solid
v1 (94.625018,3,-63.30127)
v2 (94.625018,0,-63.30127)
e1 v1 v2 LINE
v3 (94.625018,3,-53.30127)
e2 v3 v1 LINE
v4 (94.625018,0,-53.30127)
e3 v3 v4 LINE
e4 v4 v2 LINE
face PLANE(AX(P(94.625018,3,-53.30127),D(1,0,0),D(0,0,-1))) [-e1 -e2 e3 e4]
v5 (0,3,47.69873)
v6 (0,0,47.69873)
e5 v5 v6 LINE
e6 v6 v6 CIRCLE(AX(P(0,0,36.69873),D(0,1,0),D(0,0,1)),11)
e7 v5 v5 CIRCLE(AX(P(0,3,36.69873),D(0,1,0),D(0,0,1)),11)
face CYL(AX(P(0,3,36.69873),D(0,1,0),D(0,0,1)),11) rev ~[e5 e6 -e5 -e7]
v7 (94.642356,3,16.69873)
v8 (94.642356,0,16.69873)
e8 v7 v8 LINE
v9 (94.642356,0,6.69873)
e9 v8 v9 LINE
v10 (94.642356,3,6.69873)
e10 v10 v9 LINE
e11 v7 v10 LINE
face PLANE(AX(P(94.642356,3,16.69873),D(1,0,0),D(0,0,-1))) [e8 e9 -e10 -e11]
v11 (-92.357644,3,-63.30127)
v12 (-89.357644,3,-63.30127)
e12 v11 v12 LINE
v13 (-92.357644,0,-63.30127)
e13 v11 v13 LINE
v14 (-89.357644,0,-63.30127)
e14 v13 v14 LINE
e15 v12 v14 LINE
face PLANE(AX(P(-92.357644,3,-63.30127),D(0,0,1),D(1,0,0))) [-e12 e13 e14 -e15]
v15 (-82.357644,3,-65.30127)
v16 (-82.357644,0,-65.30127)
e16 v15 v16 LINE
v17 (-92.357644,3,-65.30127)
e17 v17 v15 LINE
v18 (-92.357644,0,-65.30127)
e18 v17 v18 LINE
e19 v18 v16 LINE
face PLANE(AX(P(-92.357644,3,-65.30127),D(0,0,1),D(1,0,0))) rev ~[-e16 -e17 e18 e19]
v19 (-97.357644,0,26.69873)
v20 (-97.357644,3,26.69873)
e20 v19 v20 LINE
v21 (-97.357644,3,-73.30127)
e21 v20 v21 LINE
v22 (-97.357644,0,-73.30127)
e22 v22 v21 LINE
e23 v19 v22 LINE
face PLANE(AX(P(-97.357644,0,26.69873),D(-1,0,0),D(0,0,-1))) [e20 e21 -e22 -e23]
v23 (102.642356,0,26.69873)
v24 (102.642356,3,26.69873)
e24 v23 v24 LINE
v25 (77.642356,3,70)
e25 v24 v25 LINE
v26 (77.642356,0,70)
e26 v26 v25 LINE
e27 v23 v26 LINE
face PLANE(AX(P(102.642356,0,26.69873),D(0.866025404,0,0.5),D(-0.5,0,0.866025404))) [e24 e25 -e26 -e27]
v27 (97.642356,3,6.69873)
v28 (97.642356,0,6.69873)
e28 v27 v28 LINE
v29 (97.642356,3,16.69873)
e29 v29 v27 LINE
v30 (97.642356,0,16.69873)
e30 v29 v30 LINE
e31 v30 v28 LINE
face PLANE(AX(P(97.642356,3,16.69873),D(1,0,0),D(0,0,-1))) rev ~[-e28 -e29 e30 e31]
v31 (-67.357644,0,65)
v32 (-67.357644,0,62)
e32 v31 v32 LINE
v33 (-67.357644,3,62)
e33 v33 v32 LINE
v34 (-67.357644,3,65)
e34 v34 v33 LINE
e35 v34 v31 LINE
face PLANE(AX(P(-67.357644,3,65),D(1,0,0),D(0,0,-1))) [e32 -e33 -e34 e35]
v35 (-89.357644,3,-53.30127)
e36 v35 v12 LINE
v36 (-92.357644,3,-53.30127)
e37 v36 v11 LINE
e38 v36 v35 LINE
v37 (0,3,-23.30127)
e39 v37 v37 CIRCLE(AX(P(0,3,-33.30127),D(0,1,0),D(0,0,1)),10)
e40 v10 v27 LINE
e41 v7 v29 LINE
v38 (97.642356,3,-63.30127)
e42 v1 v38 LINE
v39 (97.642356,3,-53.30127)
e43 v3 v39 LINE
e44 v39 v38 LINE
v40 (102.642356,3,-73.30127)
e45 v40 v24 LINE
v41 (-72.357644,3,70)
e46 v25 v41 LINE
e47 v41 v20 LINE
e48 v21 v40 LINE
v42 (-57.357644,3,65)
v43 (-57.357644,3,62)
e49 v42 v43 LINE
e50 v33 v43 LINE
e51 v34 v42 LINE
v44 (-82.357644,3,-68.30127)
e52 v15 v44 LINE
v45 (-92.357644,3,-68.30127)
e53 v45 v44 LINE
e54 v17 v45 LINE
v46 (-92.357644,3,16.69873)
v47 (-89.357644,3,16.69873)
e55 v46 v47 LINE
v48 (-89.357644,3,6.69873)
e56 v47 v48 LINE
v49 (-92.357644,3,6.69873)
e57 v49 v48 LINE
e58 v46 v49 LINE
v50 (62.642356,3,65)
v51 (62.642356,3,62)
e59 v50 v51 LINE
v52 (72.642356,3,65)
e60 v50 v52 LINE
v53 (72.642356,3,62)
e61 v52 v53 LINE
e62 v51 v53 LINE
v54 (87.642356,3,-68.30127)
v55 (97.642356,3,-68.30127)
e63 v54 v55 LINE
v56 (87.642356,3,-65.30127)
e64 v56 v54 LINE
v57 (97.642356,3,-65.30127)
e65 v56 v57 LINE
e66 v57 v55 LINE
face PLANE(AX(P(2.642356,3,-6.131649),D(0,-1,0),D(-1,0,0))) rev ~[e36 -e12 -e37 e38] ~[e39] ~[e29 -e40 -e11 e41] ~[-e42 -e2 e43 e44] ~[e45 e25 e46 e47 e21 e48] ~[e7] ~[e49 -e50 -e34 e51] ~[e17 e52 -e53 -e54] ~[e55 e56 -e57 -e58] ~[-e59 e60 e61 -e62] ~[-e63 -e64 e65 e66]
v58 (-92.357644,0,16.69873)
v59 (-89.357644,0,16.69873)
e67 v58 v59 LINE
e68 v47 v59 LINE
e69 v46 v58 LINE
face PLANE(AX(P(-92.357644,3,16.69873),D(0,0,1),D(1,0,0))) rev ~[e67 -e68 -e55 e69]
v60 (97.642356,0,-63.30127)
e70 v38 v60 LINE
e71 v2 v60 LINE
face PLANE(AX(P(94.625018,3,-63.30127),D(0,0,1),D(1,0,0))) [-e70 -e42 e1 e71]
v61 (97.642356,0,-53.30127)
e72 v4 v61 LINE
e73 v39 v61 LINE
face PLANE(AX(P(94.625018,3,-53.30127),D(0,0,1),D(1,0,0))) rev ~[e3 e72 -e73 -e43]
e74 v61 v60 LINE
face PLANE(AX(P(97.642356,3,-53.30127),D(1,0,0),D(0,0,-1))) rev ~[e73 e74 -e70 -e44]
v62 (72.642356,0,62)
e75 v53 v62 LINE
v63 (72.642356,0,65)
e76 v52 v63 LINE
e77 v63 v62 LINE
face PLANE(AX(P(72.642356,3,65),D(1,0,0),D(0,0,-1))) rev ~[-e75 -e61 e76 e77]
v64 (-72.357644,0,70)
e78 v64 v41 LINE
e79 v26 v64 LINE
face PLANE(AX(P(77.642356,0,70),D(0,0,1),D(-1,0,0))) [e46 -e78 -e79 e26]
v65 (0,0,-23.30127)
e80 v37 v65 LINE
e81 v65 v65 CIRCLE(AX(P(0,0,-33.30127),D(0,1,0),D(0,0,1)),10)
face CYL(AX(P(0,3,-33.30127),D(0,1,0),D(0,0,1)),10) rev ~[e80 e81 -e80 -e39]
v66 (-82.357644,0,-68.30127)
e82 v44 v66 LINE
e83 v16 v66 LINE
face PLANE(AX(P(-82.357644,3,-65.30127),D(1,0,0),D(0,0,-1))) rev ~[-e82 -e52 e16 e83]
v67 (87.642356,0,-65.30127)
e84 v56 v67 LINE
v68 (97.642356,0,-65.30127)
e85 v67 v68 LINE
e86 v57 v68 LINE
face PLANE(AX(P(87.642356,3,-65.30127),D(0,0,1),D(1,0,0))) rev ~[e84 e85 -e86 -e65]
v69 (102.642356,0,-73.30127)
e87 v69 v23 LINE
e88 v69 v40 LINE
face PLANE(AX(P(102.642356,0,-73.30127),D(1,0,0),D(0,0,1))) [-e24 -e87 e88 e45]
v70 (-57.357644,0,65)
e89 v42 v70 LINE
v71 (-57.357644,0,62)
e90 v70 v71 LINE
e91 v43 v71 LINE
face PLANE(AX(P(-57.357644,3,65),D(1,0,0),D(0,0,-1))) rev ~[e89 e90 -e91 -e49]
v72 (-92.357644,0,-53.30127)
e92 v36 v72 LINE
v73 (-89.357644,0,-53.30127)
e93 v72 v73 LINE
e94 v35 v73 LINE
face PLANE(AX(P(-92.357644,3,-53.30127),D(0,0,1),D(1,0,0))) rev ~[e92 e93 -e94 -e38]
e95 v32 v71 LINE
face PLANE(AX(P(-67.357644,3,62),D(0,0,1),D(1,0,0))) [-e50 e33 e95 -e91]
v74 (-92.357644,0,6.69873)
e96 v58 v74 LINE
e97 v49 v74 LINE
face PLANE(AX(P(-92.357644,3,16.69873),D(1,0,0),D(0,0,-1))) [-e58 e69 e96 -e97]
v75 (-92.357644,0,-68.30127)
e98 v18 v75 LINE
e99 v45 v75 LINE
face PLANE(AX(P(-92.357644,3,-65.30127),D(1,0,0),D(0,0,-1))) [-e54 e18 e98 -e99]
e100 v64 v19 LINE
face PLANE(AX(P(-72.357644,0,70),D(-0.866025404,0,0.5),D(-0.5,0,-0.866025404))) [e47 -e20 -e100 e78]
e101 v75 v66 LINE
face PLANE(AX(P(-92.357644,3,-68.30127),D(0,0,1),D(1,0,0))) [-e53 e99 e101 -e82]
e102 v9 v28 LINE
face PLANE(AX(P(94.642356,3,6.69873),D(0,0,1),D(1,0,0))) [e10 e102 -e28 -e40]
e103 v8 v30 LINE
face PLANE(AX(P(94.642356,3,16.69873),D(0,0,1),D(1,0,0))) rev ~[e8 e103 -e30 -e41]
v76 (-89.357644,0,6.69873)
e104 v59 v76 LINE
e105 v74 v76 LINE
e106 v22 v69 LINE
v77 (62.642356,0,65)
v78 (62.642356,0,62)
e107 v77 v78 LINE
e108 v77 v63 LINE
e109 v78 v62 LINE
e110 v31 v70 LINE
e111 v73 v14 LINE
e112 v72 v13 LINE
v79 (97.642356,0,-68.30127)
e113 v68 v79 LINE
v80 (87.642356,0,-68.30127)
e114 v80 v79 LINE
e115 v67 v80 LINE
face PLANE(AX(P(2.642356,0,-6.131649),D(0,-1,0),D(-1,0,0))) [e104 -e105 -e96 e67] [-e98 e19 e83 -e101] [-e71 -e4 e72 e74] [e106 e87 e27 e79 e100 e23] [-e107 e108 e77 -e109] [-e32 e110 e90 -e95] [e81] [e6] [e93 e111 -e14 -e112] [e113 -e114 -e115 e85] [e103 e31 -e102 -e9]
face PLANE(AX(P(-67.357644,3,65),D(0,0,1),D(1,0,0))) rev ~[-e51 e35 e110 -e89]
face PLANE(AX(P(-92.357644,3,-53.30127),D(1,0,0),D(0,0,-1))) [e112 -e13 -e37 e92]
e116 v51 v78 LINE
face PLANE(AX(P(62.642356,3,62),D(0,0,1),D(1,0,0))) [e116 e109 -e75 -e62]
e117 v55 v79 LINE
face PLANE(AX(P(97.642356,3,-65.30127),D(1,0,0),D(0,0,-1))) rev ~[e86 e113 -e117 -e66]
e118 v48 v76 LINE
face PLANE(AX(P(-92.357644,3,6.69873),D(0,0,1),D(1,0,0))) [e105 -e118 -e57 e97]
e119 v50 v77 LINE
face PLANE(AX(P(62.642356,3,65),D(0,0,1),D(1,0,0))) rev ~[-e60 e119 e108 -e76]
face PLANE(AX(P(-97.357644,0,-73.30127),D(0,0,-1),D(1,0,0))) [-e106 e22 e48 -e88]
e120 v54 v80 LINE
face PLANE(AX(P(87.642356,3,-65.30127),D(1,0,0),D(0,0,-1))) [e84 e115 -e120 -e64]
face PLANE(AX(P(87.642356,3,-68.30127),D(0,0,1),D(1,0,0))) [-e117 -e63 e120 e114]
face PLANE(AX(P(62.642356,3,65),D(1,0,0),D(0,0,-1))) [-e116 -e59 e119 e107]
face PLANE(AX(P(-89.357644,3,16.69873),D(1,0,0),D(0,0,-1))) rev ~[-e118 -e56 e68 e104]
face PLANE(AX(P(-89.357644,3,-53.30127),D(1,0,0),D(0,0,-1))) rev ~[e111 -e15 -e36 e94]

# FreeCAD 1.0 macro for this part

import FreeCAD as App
import Part
import Sketcher
Q = App.Units.Quantity


def add_polygon(sketch, points):
    """Adds a closed chain of lines whose ends are joined by coincident constraints."""
    first, n = sketch.GeometryCount, len(points)
    for a, b in zip(points, points[1:] + points[:1]):
        sketch.addGeometry(Part.LineSegment(App.Vector(*a, 0), App.Vector(*b, 0)), False)
    for i in range(n):
        sketch.addConstraint(Sketcher.Constraint("Coincident", first + i, 2, first + (i + 1) % n, 1))

doc = App.newDocument("Part")
body = doc.addObject("PartDesign::Body", "Body")

sketch1 = body.newObject("Sketcher::SketchObject", "Sketch")
sketch1.AttachmentSupport = (doc.getObject("XZ_Plane"), [""])
sketch1.MapMode = "FlatFace"
add_polygon(sketch1, [(-97.357644, -73.30127), (-97.357644, 26.69873), (-72.357644, 70), (77.642356, 70), (102.642356, 26.69873), (102.642356, -73.30127)])
sketch1.addConstraint([
    Sketcher.Constraint("Vertical", 0),
    Sketcher.Constraint("Horizontal", 2),
    Sketcher.Constraint("Vertical", 4),
    Sketcher.Constraint("Horizontal", 5),
    Sketcher.Constraint("Horizontal", 0, 2, 3, 2),
    Sketcher.Constraint("Equal", 1, 3),
    Sketcher.Constraint("DistanceX", 2, 1, 2, 2, Q("150 mm")),
    Sketcher.Constraint("DistanceX", 5, 2, 5, 1, Q("200 mm")),
    Sketcher.Constraint("DistanceY", 0, 1, 0, 2, Q("100 mm")),
    Sketcher.Constraint("Angle", 1, Q("60 deg")),
    Sketcher.Constraint("DistanceY", -1, 1, 1, 2, Q("70 mm")),
    Sketcher.Constraint("DistanceX", 0, 2, -1, 1, Q("97.357644 mm")),
])
pad1 = body.newObject("PartDesign::Pad", "Pad")
pad1.Profile = sketch1
pad1.Length = 3
pad1.Reversed = True

sketch2 = body.newObject("Sketcher::SketchObject", "Sketch001")
sketch2.AttachmentSupport = (doc.getObject("XZ_Plane"), [""])
sketch2.MapMode = "FlatFace"
sketch2.AttachmentOffset = App.Placement(App.Vector(0, 0, -3), App.Rotation())
add_polygon(sketch2, [(-67.357644, 62), (-67.357644, 65), (-57.357644, 65), (-57.357644, 62)])
add_polygon(sketch2, [(62.642356, 62), (62.642356, 65), (72.642356, 65), (72.642356, 62)])
add_polygon(sketch2, [(94.642356, 6.69873), (94.642356, 16.69873), (97.642356, 16.69873), (97.642356, 6.69873)])
add_polygon(sketch2, [(94.625018, -63.30127), (94.625018, -53.30127), (97.642356, -53.30127), (97.642356, -63.30127)])
add_polygon(sketch2, [(87.642356, -68.30127), (87.642356, -65.30127), (97.642356, -65.30127), (97.642356, -68.30127)])
add_polygon(sketch2, [(-92.357644, 6.69873), (-92.357644, 16.69873), (-89.357644, 16.69873), (-89.357644, 6.69873)])
add_polygon(sketch2, [(-92.357644, -63.30127), (-92.357644, -53.30127), (-89.357644, -53.30127), (-89.357644, -63.30127)])
add_polygon(sketch2, [(-92.357644, -68.30127), (-92.357644, -65.30127), (-82.357644, -65.30127), (-82.357644, -68.30127)])
sketch2.addConstraint([
    Sketcher.Constraint("Vertical", 0),
    Sketcher.Constraint("Horizontal", 1),
    Sketcher.Constraint("Vertical", 2),
    Sketcher.Constraint("Horizontal", 3),
    Sketcher.Constraint("Vertical", 4),
    Sketcher.Constraint("Horizontal", 5),
    Sketcher.Constraint("Vertical", 6),
    Sketcher.Constraint("Horizontal", 7),
    Sketcher.Constraint("Vertical", 8),
    Sketcher.Constraint("Horizontal", 9),
    Sketcher.Constraint("Vertical", 10),
    Sketcher.Constraint("Horizontal", 11),
    Sketcher.Constraint("Vertical", 12),
    Sketcher.Constraint("Horizontal", 13),
    Sketcher.Constraint("Vertical", 14),
    Sketcher.Constraint("Horizontal", 15),
    Sketcher.Constraint("Vertical", 16),
    Sketcher.Constraint("Horizontal", 17),
    Sketcher.Constraint("Vertical", 18),
    Sketcher.Constraint("Horizontal", 19),
    Sketcher.Constraint("Vertical", 20),
    Sketcher.Constraint("Horizontal", 21),
    Sketcher.Constraint("Vertical", 22),
    Sketcher.Constraint("Horizontal", 23),
    Sketcher.Constraint("Vertical", 24),
    Sketcher.Constraint("Horizontal", 25),
    Sketcher.Constraint("Vertical", 26),
    Sketcher.Constraint("Horizontal", 27),
    Sketcher.Constraint("Vertical", 28),
    Sketcher.Constraint("Horizontal", 29),
    Sketcher.Constraint("Vertical", 30),
    Sketcher.Constraint("Horizontal", 31),
    Sketcher.Constraint("Horizontal", 1, 2, 4, 2),
    Sketcher.Constraint("Horizontal", 3, 2, 6, 2),
    Sketcher.Constraint("Horizontal", 9, 2, 20, 2),
    Sketcher.Constraint("Horizontal", 11, 2, 22, 2),
    Sketcher.Constraint("Horizontal", 13, 2, 24, 2),
    Sketcher.Constraint("Horizontal", 15, 2, 26, 2),
    Sketcher.Constraint("Horizontal", 17, 2, 28, 2),
    Sketcher.Constraint("Horizontal", 19, 2, 30, 2),
    Sketcher.Constraint("Vertical", 10, 2, 13, 2),
    Sketcher.Constraint("Vertical", 14, 2, 17, 2),
    Sketcher.Constraint("Vertical", 23, 2, 24, 2),
    Sketcher.Constraint("Vertical", 22, 2, 25, 2),
    Sketcher.Constraint("Vertical", 27, 2, 28, 2),
    Sketcher.Constraint("Equal", 3, 5),
    Sketcher.Constraint("Equal", 7, 17),
    Sketcher.Constraint("Equal", 11, 21),
    Sketcher.Constraint("Equal", 19, 29),
    Sketcher.Constraint("Equal", 27, 0),
    Sketcher.Constraint("Equal", 31, 8),
    Sketcher.Constraint("Equal", 10, 12),
    Sketcher.Constraint("Equal", 6, 16),
    Sketcher.Constraint("DistanceX", 1, 1, 1, 2, Q("10 mm")),
    Sketcher.Constraint("DistanceX", 9, 1, 9, 2, Q("3 mm")),
    Sketcher.Constraint("DistanceY", -1, 1, 0, 2, Q("65 mm")),
    Sketcher.Constraint("DistanceX", 1, 2, 4, 2, Q("120 mm")),
    Sketcher.Constraint("DistanceX", 6, 2, 8, 2, Q("22 mm")),
    Sketcher.Constraint("DistanceY", 12, 2, 11, 2, Q("60 mm")),
    Sketcher.Constraint("DistanceY", 16, 2, 15, 2, Q("2 mm")),
    Sketcher.Constraint("DistanceX", 20, 2, 3, 2, Q("25 mm")),
    Sketcher.Constraint("DistanceX", 13, 1, 13, 2, Q("3.017338 mm")),
    Sketcher.Constraint("DistanceY", -1, 1, 8, 2, Q("16.69873 mm")),
    Sketcher.Constraint("DistanceX", -1, 1, 12, 2, Q("94.625018 mm")),
])
pocket1 = body.newObject("PartDesign::Pocket", "Pocket")
pocket1.Profile = sketch2
pocket1.Length = 3
pocket1.Reversed = True

sketch3 = body.newObject("Sketcher::SketchObject", "Sketch002")
sketch3.AttachmentSupport = (doc.getObject("XZ_Plane"), [""])
sketch3.MapMode = "FlatFace"
sketch3.AttachmentOffset = App.Placement(App.Vector(0, 0, -3), App.Rotation())
sketch3.addGeometry([
    Part.Circle(App.Vector(0, -33.30127, 0), App.Vector(0, 0, 1), 10),
    Part.Circle(App.Vector(0, 36.69873, 0), App.Vector(0, 0, 1), 11),
], False)
sketch3.addConstraint([
    Sketcher.Constraint("PointOnObject", 0, 3, -2),
    Sketcher.Constraint("PointOnObject", 1, 3, -2),
    Sketcher.Constraint("Diameter", 0, Q("20 mm")),
    Sketcher.Constraint("Diameter", 1, Q("22 mm")),
    Sketcher.Constraint("DistanceY", 0, 3, 1, 3, Q("70 mm")),
    Sketcher.Constraint("DistanceY", 0, 3, -1, 1, Q("33.30127 mm")),
])
pocket2 = body.newObject("PartDesign::Pocket", "Pocket001")
pocket2.Profile = sketch3
pocket2.Length = 10
pocket2.Reversed = True

doc.recompute()
